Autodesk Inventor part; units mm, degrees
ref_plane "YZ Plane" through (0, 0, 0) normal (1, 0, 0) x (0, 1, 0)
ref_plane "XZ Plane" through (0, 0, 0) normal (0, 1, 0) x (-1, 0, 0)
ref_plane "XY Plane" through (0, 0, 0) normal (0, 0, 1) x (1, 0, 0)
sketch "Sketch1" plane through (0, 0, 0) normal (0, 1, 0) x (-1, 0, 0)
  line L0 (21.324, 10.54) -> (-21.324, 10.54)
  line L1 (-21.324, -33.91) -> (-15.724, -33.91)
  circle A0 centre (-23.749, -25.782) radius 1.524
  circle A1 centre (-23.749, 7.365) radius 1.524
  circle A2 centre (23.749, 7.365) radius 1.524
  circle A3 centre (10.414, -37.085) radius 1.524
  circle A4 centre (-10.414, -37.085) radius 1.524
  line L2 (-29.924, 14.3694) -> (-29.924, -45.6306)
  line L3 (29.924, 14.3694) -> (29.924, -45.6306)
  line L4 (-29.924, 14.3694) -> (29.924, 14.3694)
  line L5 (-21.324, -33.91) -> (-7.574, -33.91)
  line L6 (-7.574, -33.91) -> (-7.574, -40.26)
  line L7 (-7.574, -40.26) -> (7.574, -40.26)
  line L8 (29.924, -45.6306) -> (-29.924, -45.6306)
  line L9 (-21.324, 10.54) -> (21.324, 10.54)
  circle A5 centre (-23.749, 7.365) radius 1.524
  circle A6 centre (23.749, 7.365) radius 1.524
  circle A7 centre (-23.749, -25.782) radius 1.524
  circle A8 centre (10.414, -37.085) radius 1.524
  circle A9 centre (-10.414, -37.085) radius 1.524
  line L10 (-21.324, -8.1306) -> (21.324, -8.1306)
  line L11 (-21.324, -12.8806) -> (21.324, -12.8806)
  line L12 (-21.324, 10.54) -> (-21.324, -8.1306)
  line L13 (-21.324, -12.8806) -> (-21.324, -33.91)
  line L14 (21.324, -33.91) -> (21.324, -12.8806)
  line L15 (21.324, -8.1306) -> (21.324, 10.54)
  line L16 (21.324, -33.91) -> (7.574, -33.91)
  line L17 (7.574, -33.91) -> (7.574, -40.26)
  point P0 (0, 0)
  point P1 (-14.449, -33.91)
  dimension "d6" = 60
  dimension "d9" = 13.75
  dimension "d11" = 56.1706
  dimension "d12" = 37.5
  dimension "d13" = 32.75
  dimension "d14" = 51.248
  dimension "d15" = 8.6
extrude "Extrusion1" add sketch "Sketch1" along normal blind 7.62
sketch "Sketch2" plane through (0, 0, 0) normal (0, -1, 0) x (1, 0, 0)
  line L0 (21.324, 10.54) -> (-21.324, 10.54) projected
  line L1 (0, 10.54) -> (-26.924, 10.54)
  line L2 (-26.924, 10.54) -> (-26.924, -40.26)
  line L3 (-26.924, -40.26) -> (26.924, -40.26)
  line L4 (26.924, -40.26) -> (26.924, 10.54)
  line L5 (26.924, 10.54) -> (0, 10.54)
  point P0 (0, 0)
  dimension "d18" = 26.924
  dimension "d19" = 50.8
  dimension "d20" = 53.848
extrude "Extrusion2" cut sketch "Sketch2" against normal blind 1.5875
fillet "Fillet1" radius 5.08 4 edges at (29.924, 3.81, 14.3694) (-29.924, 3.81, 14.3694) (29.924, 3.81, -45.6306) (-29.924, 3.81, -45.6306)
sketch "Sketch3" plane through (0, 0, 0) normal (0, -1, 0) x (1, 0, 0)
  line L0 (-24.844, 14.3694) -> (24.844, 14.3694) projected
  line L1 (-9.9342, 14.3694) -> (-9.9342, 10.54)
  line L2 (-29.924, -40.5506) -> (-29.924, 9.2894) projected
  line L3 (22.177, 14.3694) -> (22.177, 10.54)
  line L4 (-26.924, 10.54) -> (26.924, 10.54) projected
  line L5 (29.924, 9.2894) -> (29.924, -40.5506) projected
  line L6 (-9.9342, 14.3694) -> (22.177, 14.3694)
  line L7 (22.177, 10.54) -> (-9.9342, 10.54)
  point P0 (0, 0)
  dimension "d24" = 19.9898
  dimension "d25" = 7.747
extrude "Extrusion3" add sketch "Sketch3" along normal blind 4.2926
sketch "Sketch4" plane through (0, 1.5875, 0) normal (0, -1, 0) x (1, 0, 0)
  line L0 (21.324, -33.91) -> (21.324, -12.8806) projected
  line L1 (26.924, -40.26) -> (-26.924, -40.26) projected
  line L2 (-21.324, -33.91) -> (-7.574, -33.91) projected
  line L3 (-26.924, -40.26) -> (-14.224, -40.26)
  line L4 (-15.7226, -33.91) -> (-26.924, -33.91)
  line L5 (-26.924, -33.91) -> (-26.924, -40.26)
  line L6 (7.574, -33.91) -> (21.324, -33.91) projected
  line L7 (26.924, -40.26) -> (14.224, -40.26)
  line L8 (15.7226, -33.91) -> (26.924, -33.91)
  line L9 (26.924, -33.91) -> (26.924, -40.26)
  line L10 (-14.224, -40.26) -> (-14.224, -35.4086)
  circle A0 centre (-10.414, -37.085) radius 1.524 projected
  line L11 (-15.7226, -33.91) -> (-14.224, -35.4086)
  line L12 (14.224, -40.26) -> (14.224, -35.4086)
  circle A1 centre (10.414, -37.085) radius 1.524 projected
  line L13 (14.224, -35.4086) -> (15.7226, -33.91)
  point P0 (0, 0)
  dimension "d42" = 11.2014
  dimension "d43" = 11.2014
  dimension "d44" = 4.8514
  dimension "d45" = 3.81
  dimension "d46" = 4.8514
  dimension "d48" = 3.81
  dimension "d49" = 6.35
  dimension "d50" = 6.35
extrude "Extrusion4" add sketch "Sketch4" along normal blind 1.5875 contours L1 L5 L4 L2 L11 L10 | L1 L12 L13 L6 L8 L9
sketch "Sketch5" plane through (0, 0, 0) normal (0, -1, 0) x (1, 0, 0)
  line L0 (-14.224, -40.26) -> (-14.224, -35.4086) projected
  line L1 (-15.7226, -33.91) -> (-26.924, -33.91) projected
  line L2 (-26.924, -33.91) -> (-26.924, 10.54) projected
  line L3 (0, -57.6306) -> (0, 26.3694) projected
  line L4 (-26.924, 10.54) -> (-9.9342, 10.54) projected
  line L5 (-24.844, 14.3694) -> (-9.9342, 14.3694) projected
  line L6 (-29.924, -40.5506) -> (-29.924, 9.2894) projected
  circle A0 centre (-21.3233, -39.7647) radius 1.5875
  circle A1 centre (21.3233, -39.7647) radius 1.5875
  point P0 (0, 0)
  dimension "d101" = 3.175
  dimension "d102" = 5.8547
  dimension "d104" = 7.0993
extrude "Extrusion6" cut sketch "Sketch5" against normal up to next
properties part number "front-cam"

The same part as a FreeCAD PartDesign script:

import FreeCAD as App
import Part
import Sketcher

V = App.Vector
Q = App.Units.Quantity


def edges_at(feature, points):
    """Names of the edges that pass closest to the given points."""
    edges = feature.Shape.Edges
    near = lambda p: min(range(len(edges)), key=lambda i: edges[i].distToShape(Part.Vertex(*p))[0])
    return sorted({f"Edge{near(p) + 1}" for p in points})


def add_polygon(sketch, points):
    """Adds a closed chain of lines whose ends are joined by coincident constraints."""
    first, n = sketch.GeometryCount, len(points)
    for a, b in zip(points, points[1:] + points[:1]):
        sketch.addGeometry(Part.LineSegment(App.Vector(*a, 0), App.Vector(*b, 0)), False)
    for i in range(n):
        sketch.addConstraint(Sketcher.Constraint("Coincident", first + i, 2, first + (i + 1) % n, 1))

doc = App.newDocument("Part")
body = doc.addObject("PartDesign::Body", "Body")

sketch1 = body.newObject("Sketcher::SketchObject", "Sketch")
sketch1.AttachmentSupport = (doc.getObject("XZ_Plane"), [""])
sketch1.MapMode = "FlatFace"
add_polygon(sketch1, [(-29.9, 14.4), (29.9, 14.4), (29.9, -45.6), (-29.9, -45.6)])
sketch1.addGeometry(Part.Circle(V(10.4, -37.1, 0), V(0, 0, 1), 1.5), False)
sketch1.addGeometry(Part.Circle(V(23.7, -25.8, 0), V(0, 0, 1), 1.5), False)
add_polygon(sketch1, [(7.6, -33.9), (21.3, -33.9), (21.3, -12.9), (-21.3, -12.9), (-21.3, -33.9), (-7.6, -33.9), (-7.6, -40.3), (7.6, -40.3)])
sketch1.addGeometry(Part.Circle(V(-10.4, -37.1, 0), V(0, 0, 1), 1.5), False)
sketch1.addGeometry(Part.Circle(V(23.7, 7.4, 0), V(0, 0, 1), 1.5), False)
add_polygon(sketch1, [(21.3, 10.5), (-21.3, 10.5), (-21.3, -8.1), (21.3, -8.1)])
sketch1.addGeometry(Part.Circle(V(-23.7, 7.4, 0), V(0, 0, 1), 1.5), False)
sketch1.addConstraint([
    Sketcher.Constraint("Horizontal", 0),
    Sketcher.Constraint("Vertical", 1),
    Sketcher.Constraint("Horizontal", 2),
    Sketcher.Constraint("Vertical", 3),
    Sketcher.Constraint("Horizontal", 6),
    Sketcher.Constraint("Vertical", 7),
    Sketcher.Constraint("Horizontal", 8),
    Sketcher.Constraint("Vertical", 9),
    Sketcher.Constraint("Horizontal", 10),
    Sketcher.Constraint("Vertical", 11),
    Sketcher.Constraint("Horizontal", 12),
    Sketcher.Constraint("Vertical", 13),
    Sketcher.Constraint("Horizontal", 16),
    Sketcher.Constraint("Vertical", 17),
    Sketcher.Constraint("Horizontal", 18),
    Sketcher.Constraint("Vertical", 19),
    Sketcher.Constraint("Equal", 4, 5),
    Sketcher.Constraint("Equal", 5, 14),
    Sketcher.Constraint("Equal", 14, 15),
    Sketcher.Constraint("Equal", 15, 20),
    Sketcher.Constraint("Symmetric", 4, 3, 14, 3, -2),
    Sketcher.Constraint("Symmetric", 15, 3, 20, 3, -2),
    Sketcher.Constraint("Symmetric", 6, 2, 9, 2, -2),
    Sketcher.Constraint("Vertical", 5, 3, 15, 3),
    Sketcher.Constraint("Vertical", 9, 2, 16, 2),
    Sketcher.Constraint("Vertical", 7, 2, 18, 2),
    Sketcher.Constraint("Equal", 6, 10),
    Sketcher.Constraint("Diameter", 4, Q("0.12 in")),
    Sketcher.Constraint("DistanceY", 1, 2, 1, 1, Q("2.3622 in")),
    Sketcher.Constraint("DistanceX", 6, 1, 6, 2, 13.75),
    Sketcher.Constraint("DistanceY", 11, 2, 11, 1, Q("0.25 in")),
    Sketcher.Constraint("DistanceX", -1, 1, 4, 3, Q("0.41 in")),
    Sketcher.Constraint("DistanceY", 4, 3, 15, 3, Q("1.75 in")),
    Sketcher.Constraint("DistanceX", 20, 3, 15, 3, Q("1.87 in")),
    Sketcher.Constraint("DistanceY", 6, 2, 5, 3, Q("0.32 in")),
    Sketcher.Constraint("DistanceX", 6, 2, 1, 2, 8.6),
    Sketcher.Constraint("DistanceX", 3, 2, 8, 2, 8.6),
    Sketcher.Constraint("DistanceY", 2, 2, 8, 2, 32.75),
    Sketcher.Constraint("DistanceY", 9, 2, 16, 2, Q("1.75 in")),
    Sketcher.Constraint("DistanceY", 4, 3, 5, 3, Q("0.445 in")),
    Sketcher.Constraint("DistanceY", 8, 2, 17, 2, Q("0.187 in")),
    Sketcher.Constraint("DistanceX", 0, 1, 0, 2, 59.848),
    Sketcher.Constraint("DistanceY", 7, 1, 7, 2, 21.0294),
    Sketcher.Constraint("DistanceY", 7, 2, -1, 1, Q("0.5071 in")),
])
pad1 = body.newObject("PartDesign::Pad", "Pad")
pad1.Profile = sketch1
pad1.Length = Q("0.3 in")
pad1.Reversed = True

sketch2 = body.newObject("Sketcher::SketchObject", "Sketch001")
sketch2.AttachmentSupport = (doc.getObject("XZ_Plane"), [""])
sketch2.MapMode = "FlatFace"
add_polygon(sketch2, [(27, 11), (-27, 11), (-27, -40), (27, -40)])
sketch2.addConstraint([
    Sketcher.Constraint("Horizontal", 0),
    Sketcher.Constraint("Vertical", 1),
    Sketcher.Constraint("Horizontal", 2),
    Sketcher.Constraint("Vertical", 3),
    Sketcher.Constraint("DistanceY", 1, 2, 1, 1, Q("2 in")),
    Sketcher.Constraint("DistanceX", 0, 2, 0, 1, Q("2.12 in")),
    Sketcher.Constraint("DistanceX", 0, 2, -1, 1, Q("1.06 in")),
    Sketcher.Constraint("DistanceY", -1, 1, 0, 2, 10.54),
])
pocket1 = body.newObject("PartDesign::Pocket", "Pocket")
pocket1.Profile = sketch2
pocket1.Length = Q("0.0625 in")
doc.recompute()

fillet = body.newObject("PartDesign::Fillet", "Fillet")
fillet.Base = (pocket1, edges_at(pocket1, [
    (29.924, 3.81, 14.369),
    (-29.924, 3.81, 14.369),
    (29.924, 3.81, -45.631),
    (-29.924, 3.81, -45.631),
]))
fillet.Radius = Q("0.2 in")

sketch3 = body.newObject("Sketcher::SketchObject", "Sketch002")
sketch3.AttachmentSupport = (doc.getObject("XZ_Plane"), [""])
sketch3.MapMode = "FlatFace"
add_polygon(sketch3, [(22.2, 14.4), (-9.9, 14.4), (-9.9, 10.5), (22.2, 10.5)])
sketch3.addConstraint([
    Sketcher.Constraint("Horizontal", 0),
    Sketcher.Constraint("Vertical", 1),
    Sketcher.Constraint("Horizontal", 2),
    Sketcher.Constraint("Vertical", 3),
    Sketcher.Constraint("DistanceX", 0, 2, 0, 1, 32.1112),
    Sketcher.Constraint("DistanceY", 1, 2, 1, 1, 3.8294),
    Sketcher.Constraint("DistanceX", 0, 2, -1, 1, Q("0.3911 in")),
    Sketcher.Constraint("DistanceY", -1, 1, 0, 2, 14.3694),
])
pad2 = body.newObject("PartDesign::Pad", "Pad001")
pad2.Profile = sketch3
pad2.Length = Q("0.169 in")

sketch4 = body.newObject("Sketcher::SketchObject", "Sketch003")
sketch4.AttachmentSupport = (doc.getObject("XZ_Plane"), [""])
sketch4.MapMode = "FlatFace"
sketch4.AttachmentOffset = App.Placement(V(0, 0, -0.0625 * 25.4), App.Rotation())
add_polygon(sketch4, [(-26.9, -40.3), (-14.2, -40.3), (-14.2, -35.4), (-15.7, -33.9), (-26.9, -33.9)])
add_polygon(sketch4, [(14.2, -40.3), (26.9, -40.3), (26.9, -33.9), (15.7, -33.9), (14.2, -35.4)])
sketch4.addConstraint([
    Sketcher.Constraint("Horizontal", 0),
    Sketcher.Constraint("Vertical", 1),
    Sketcher.Constraint("Horizontal", 3),
    Sketcher.Constraint("Vertical", 4),
    Sketcher.Constraint("Horizontal", 5),
    Sketcher.Constraint("Vertical", 6),
    Sketcher.Constraint("Horizontal", 7),
    Sketcher.Constraint("Vertical", 9),
    Sketcher.Constraint("Symmetric", 4, 2, 5, 2, -2),
    Sketcher.Constraint("Symmetric", 2, 2, 7, 2, -2),
    Sketcher.Constraint("Symmetric", 1, 2, 8, 2, -2),
    Sketcher.Constraint("Perpendicular", 2, 8),
    Sketcher.Constraint("DistanceY", 4, 2, 4, 1, Q("0.25 in")),
    Sketcher.Constraint("DistanceX", 3, 2, 3, 1, Q("0.441 in")),
    Sketcher.Constraint("DistanceY", 1, 1, 1, 2, Q("0.191 in")),
    Sketcher.Constraint("DistanceX", 0, 2, -1, 1, Q("0.56 in")),
    Sketcher.Constraint("DistanceY", 0, 2, -1, 1, 40.26),
])
pad3 = body.newObject("PartDesign::Pad", "Pad002")
pad3.Profile = sketch4
pad3.Length = Q("0.0625 in")

sketch5 = body.newObject("Sketcher::SketchObject", "Sketch004")
sketch5.AttachmentSupport = (doc.getObject("XZ_Plane"), [""])
sketch5.MapMode = "FlatFace"
sketch5.addGeometry([
    Part.Circle(V(-21.3, -39.8, 0), V(0, 0, 1), 1.6),
    Part.Circle(V(21.3, -39.8, 0), V(0, 0, 1), 1.6),
], False)
sketch5.addConstraint([
    Sketcher.Constraint("Equal", 0, 1),
    Sketcher.Constraint("Symmetric", 0, 3, 1, 3, -2),
    Sketcher.Constraint("Diameter", 0, Q("0.125 in")),
    Sketcher.Constraint("DistanceX", 0, 3, 1, 3, Q("1.679 in")),
    Sketcher.Constraint("DistanceY", 0, 3, -1, 1, 39.7647),
])
pocket2 = body.newObject("PartDesign::Pocket", "Pocket001")
pocket2.Profile = sketch5
pocket2.Length = Q("0.3 in")

doc.recompute()
